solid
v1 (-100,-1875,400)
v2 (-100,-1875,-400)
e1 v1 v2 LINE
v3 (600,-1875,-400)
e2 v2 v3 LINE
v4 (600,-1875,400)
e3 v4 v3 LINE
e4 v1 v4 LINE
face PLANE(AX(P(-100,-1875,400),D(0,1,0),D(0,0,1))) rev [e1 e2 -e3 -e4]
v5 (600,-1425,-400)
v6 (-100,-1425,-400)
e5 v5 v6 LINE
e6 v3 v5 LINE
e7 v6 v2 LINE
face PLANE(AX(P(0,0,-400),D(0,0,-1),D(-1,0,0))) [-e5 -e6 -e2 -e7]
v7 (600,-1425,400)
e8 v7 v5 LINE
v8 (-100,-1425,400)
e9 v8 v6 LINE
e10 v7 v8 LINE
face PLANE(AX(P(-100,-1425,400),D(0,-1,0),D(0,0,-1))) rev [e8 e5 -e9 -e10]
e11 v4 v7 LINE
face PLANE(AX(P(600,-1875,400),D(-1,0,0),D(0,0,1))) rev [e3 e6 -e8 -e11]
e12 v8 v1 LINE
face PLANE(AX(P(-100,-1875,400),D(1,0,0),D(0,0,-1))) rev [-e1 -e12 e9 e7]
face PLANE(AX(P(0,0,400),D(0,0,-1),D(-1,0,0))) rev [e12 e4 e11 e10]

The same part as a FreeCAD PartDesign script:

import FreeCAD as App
import Part
import Sketcher
from FreeCAD import Vector
Q = App.Units.Quantity


def add_polygon(sketch, points):
    """Adds a closed chain of lines whose ends are joined by coincident constraints."""
    first, n = sketch.GeometryCount, len(points)
    for a, b in zip(points, points[1:] + points[:1]):
        sketch.addGeometry(Part.LineSegment(App.Vector(*a, 0), App.Vector(*b, 0)), False)
    for i in range(n):
        sketch.addConstraint(Sketcher.Constraint("Coincident", first + i, 2, first + (i + 1) % n, 1))

doc = App.newDocument("Part")
body = doc.addObject("PartDesign::Body", "Body")

# Sketch on XY plane
sketch1 = doc.addObject("Sketcher::SketchObject", "Sketch")
body.addObject(sketch1)
sketch1.AttachmentSupport = (doc.XY_Plane, [""])
sketch1.MapMode = "FlatFace"
sketch1.AttachmentOffset = App.Placement(Vector(0, 0, -400), App.Rotation())
add_polygon(sketch1, [(-100, -1425), (-100, -1875), (600, -1875), (600, -1425)])  # lines 0-3
sketch1.addConstraint(Sketcher.Constraint("Vertical", 0))
sketch1.addConstraint(Sketcher.Constraint("Horizontal", 1))
sketch1.addConstraint(Sketcher.Constraint("Vertical", 2))
sketch1.addConstraint(Sketcher.Constraint("Horizontal", 3))
sketch1.addConstraint(Sketcher.Constraint("DistanceX", 1, 1, 1, 2, Q("700 mm")))
sketch1.addConstraint(Sketcher.Constraint("DistanceY", 0, 2, 0, 1, Q("450 mm")))
sketch1.addConstraint(Sketcher.Constraint("DistanceX", 0, 2, -1, 1, Q("100 mm")))
sketch1.addConstraint(Sketcher.Constraint("DistanceY", 0, 2, -1, 1, Q("1875 mm")))
pad1 = doc.addObject("PartDesign::Pad", "Pad")
body.addObject(pad1)
pad1.Profile = sketch1
pad1.Length = 800

doc.recompute()
